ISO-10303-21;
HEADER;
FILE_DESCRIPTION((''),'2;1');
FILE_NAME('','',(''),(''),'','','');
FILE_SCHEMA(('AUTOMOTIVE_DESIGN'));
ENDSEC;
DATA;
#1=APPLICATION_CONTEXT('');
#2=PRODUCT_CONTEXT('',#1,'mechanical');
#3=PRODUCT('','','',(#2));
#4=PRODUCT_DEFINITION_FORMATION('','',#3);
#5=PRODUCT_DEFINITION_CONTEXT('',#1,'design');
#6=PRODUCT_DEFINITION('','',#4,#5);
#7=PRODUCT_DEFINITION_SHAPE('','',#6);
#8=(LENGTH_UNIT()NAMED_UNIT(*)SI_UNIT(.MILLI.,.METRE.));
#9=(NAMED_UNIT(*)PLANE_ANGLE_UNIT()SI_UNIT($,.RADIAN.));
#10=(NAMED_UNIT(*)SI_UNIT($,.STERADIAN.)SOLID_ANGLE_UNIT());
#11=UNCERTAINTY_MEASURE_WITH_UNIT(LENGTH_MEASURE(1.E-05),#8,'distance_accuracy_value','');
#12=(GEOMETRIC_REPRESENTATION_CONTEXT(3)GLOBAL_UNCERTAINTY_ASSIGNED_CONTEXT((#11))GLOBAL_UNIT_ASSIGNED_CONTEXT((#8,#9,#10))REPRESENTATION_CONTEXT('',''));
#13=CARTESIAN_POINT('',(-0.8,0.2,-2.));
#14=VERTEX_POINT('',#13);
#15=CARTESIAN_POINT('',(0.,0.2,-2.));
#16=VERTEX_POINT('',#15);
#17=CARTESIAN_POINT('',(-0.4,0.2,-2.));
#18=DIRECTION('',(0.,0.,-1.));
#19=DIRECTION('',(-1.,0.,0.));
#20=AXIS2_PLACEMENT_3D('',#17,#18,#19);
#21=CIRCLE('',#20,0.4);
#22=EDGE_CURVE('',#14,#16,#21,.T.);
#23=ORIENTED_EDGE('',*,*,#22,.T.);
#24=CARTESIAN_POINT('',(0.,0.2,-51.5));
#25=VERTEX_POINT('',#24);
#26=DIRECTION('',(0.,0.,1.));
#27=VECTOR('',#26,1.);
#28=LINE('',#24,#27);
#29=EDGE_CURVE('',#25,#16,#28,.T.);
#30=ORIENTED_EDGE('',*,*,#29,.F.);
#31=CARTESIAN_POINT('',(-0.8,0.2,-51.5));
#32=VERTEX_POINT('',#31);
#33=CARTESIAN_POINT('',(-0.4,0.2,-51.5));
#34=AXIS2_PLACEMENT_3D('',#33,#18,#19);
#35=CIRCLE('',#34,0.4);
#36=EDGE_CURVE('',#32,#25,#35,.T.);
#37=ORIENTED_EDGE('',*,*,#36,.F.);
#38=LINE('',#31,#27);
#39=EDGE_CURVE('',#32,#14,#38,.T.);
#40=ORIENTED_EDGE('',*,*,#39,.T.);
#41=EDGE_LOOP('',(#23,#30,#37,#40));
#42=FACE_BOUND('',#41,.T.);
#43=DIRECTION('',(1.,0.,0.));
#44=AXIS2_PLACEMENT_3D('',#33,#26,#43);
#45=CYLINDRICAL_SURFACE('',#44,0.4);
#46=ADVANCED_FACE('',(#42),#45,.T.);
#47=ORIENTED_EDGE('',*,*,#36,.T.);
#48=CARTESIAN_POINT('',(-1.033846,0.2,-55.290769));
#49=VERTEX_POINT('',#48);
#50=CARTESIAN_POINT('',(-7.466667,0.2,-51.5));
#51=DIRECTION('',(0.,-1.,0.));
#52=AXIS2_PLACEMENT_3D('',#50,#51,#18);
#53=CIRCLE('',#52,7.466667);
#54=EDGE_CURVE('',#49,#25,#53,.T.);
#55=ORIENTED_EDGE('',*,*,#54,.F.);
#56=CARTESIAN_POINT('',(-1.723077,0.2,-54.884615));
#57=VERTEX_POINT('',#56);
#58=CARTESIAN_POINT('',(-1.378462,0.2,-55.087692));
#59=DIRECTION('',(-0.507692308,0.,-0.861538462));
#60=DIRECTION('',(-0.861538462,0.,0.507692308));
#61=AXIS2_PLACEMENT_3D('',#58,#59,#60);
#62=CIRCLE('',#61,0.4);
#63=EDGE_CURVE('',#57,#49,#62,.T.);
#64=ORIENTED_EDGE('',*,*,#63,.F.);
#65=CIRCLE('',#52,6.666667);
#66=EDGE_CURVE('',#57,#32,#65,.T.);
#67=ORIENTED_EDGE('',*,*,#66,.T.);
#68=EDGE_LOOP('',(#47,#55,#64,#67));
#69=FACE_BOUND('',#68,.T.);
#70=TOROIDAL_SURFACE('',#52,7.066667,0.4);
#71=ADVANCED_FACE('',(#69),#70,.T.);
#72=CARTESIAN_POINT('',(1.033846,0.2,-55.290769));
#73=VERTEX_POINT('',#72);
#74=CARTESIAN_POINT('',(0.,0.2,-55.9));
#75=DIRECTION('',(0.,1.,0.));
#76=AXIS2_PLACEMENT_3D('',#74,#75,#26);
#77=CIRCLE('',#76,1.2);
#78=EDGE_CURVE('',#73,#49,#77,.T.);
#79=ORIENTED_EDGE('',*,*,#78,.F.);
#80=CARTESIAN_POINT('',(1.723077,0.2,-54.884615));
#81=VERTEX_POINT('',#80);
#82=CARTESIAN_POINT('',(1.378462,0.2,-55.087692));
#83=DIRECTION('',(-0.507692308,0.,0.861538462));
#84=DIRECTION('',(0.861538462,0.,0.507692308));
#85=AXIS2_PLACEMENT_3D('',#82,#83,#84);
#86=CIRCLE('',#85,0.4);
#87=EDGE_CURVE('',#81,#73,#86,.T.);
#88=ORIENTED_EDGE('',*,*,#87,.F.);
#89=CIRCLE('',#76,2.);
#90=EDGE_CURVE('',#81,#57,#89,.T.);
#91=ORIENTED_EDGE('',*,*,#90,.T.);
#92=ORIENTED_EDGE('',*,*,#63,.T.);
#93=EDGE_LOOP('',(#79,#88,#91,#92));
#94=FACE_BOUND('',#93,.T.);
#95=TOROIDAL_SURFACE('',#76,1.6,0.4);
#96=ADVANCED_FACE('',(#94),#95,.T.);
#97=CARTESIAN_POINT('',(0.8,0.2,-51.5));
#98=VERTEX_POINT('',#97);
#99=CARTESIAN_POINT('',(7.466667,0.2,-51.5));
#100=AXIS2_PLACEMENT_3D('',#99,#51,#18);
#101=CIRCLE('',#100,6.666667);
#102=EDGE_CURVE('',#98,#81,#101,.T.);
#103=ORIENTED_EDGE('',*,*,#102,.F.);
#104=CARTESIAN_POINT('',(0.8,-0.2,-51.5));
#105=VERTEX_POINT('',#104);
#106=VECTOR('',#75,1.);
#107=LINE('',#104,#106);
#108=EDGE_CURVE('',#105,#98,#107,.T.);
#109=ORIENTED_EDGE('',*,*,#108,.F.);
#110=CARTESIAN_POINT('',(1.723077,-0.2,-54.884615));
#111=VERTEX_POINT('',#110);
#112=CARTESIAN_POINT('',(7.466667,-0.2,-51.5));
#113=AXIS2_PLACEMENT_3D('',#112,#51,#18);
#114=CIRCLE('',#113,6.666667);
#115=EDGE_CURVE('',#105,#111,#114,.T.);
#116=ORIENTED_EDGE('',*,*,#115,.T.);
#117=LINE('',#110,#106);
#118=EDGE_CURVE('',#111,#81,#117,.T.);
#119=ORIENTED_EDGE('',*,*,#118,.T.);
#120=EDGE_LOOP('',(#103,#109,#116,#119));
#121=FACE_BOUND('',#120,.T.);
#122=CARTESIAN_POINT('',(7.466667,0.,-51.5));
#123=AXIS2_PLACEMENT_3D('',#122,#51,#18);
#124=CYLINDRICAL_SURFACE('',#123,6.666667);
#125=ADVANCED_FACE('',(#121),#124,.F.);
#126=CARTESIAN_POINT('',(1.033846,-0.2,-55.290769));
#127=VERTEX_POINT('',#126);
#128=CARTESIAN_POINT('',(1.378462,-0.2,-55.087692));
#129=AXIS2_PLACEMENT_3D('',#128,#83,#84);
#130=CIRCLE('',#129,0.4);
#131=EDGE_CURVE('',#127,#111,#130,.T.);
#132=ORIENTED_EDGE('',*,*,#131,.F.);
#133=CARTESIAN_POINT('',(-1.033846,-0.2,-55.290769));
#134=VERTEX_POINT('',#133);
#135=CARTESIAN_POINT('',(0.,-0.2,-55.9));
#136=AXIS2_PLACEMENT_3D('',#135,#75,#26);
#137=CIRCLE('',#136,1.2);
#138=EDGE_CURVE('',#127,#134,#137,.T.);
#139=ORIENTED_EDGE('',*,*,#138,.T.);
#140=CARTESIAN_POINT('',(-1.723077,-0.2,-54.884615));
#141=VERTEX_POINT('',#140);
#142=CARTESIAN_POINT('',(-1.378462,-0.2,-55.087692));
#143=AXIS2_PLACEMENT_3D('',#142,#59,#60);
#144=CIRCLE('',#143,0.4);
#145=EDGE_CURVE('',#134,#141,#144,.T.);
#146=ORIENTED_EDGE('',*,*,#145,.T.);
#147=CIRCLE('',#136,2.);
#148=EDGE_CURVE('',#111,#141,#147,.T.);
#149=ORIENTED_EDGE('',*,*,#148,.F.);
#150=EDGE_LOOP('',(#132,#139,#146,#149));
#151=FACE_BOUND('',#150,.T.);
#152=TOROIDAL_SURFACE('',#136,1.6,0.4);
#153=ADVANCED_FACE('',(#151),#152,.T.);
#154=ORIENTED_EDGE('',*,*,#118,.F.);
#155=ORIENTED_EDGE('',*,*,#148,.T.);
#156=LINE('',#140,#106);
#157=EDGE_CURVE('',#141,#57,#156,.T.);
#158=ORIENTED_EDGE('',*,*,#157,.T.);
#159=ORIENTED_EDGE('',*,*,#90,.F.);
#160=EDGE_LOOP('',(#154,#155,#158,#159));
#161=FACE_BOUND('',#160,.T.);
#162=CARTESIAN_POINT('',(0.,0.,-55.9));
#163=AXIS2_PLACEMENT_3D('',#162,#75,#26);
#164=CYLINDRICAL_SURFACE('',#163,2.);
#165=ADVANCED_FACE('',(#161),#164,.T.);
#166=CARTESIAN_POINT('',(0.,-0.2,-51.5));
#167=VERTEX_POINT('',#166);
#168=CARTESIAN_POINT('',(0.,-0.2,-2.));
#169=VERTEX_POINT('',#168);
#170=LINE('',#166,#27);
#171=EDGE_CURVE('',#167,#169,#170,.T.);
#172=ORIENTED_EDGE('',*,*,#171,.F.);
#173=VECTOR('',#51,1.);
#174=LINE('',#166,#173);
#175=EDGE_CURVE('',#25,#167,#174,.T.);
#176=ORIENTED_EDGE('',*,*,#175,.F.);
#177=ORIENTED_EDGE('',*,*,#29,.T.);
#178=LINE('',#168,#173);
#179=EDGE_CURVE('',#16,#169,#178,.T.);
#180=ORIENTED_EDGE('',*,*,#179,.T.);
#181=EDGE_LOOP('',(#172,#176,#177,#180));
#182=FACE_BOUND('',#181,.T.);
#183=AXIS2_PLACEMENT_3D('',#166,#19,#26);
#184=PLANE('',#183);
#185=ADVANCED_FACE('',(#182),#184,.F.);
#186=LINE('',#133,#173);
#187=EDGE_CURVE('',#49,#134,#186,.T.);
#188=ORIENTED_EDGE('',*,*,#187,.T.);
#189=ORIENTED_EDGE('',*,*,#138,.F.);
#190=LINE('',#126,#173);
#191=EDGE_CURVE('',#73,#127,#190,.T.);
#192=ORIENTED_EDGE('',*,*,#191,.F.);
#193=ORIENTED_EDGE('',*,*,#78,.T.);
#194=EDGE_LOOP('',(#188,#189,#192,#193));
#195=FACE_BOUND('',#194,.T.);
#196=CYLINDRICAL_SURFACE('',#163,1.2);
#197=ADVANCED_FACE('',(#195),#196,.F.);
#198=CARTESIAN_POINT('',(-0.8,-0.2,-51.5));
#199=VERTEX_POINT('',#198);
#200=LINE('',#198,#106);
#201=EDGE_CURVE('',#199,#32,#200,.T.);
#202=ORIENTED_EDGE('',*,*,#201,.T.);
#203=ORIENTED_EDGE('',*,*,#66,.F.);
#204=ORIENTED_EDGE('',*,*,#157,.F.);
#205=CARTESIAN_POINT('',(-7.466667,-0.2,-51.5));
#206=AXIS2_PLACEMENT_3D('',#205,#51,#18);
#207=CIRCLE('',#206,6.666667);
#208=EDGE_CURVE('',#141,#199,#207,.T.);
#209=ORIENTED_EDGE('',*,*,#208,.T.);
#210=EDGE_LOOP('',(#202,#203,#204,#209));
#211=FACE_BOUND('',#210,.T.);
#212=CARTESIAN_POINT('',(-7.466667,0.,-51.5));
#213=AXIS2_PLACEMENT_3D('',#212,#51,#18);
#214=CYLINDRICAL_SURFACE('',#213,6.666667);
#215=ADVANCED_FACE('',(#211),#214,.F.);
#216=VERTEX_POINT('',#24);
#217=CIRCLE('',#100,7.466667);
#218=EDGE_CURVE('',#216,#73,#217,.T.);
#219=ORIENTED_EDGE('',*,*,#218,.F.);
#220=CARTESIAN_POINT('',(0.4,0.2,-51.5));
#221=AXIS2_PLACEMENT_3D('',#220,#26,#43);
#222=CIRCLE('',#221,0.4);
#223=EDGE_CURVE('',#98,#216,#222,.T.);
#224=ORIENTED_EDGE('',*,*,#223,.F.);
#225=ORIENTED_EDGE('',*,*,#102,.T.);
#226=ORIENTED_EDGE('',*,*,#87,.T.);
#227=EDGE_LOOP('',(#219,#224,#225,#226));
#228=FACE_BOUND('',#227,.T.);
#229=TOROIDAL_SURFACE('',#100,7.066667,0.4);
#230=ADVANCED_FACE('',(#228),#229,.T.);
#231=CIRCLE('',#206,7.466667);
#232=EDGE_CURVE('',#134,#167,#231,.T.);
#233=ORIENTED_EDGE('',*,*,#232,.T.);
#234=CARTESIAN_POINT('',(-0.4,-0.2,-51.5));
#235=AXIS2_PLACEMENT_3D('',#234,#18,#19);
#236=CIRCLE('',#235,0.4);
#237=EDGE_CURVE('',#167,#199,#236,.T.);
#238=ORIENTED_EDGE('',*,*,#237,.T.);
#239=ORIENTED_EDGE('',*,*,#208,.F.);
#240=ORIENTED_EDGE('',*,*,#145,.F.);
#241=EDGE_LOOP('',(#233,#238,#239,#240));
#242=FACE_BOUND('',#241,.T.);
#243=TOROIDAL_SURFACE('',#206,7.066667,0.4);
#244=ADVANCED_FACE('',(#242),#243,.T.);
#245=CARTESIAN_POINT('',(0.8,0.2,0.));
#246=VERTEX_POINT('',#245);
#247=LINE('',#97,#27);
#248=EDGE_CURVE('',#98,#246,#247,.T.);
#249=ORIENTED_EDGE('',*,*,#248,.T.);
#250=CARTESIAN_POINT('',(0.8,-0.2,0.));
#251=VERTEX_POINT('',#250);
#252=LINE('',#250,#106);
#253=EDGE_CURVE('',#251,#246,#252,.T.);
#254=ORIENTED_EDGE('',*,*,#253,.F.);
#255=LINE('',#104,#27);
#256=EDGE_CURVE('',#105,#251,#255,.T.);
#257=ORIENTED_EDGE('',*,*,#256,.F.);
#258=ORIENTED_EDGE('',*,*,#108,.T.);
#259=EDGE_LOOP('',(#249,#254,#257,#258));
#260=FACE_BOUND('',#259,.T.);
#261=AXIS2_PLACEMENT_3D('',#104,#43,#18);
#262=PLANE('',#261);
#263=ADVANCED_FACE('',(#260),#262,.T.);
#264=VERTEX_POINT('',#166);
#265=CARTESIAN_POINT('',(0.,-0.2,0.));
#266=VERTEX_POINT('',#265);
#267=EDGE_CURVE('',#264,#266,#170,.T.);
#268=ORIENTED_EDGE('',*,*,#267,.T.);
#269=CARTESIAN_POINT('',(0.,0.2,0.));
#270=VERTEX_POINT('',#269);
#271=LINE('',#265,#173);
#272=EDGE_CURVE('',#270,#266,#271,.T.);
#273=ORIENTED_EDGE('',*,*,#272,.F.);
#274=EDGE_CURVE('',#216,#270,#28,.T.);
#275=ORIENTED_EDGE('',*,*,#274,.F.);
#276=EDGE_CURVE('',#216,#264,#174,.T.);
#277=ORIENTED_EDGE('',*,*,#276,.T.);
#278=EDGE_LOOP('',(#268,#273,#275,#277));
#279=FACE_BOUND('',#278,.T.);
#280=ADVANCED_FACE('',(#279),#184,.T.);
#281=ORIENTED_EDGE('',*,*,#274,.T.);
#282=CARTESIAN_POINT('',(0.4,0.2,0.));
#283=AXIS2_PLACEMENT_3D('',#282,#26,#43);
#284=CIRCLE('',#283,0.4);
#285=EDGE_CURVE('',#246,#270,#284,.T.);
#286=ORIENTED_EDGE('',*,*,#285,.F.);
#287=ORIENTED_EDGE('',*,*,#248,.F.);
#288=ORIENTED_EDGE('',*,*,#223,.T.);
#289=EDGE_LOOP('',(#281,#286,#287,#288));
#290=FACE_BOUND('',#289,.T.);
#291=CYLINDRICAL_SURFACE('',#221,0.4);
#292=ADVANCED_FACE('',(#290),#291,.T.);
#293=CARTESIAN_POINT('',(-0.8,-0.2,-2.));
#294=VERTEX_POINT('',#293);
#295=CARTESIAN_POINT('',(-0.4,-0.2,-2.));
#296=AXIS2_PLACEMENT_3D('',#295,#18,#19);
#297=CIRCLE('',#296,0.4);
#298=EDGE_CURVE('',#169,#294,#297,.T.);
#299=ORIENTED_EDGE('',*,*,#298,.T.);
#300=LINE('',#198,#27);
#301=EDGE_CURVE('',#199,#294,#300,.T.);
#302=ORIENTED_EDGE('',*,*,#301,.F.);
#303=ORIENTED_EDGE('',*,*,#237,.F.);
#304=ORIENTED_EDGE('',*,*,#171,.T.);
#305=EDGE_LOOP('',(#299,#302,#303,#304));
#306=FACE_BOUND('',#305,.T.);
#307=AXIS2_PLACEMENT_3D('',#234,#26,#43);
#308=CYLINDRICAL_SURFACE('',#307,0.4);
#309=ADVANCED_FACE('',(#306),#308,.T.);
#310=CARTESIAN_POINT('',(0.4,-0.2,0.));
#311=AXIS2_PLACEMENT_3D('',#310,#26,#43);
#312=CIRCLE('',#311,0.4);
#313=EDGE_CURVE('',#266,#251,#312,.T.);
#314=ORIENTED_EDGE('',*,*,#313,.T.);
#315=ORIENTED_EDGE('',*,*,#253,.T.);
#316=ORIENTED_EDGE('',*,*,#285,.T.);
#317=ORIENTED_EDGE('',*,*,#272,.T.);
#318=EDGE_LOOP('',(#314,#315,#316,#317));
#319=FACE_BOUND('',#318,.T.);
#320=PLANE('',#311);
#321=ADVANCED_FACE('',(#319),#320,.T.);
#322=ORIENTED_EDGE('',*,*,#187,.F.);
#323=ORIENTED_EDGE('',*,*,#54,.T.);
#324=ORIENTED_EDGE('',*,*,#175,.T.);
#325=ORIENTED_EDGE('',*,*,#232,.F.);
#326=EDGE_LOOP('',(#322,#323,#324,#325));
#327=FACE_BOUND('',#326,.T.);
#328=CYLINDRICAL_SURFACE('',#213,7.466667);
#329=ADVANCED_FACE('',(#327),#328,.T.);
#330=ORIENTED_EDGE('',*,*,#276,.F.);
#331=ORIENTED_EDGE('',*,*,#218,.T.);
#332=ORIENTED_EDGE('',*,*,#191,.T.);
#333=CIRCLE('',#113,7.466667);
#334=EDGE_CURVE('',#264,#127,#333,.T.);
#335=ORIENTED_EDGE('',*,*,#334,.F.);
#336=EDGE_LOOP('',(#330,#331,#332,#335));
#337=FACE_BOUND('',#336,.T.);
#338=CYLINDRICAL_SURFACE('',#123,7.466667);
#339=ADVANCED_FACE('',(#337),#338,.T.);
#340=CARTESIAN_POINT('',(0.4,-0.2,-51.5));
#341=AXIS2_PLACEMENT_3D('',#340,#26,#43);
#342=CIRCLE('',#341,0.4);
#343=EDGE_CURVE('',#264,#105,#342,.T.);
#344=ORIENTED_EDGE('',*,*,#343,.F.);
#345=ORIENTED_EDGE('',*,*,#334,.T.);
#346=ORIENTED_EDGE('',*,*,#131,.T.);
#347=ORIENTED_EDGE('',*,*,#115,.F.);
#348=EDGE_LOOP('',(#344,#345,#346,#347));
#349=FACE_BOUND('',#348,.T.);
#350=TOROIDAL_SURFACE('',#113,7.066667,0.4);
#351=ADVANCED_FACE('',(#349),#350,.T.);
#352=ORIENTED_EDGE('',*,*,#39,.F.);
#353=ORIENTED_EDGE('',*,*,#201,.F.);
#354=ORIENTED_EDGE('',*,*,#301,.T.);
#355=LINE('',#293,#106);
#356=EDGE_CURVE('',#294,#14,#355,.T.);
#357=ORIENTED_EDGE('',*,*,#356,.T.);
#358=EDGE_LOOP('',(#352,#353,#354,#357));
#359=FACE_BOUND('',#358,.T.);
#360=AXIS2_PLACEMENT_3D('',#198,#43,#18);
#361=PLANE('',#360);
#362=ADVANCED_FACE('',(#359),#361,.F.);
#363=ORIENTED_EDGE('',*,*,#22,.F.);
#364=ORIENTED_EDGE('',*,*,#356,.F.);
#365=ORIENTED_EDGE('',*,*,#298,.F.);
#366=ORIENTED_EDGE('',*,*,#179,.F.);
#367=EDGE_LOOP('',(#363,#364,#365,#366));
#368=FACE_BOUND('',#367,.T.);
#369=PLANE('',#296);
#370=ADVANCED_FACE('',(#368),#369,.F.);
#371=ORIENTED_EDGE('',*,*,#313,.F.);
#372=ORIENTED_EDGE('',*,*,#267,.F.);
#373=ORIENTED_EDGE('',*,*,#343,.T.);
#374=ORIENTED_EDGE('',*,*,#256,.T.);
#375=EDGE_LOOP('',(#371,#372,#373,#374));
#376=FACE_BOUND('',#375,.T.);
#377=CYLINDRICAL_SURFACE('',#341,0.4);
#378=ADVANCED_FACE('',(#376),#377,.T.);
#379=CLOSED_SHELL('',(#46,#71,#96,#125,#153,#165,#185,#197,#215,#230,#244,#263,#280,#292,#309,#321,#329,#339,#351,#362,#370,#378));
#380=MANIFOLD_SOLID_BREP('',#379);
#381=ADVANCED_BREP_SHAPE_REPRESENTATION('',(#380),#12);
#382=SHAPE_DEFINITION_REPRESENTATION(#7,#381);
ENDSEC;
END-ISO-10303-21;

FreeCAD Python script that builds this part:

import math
import FreeCAD as App
import Part
import Sketcher
Q = App.Units.Quantity

doc = App.newDocument("Part")
params = doc.addObject("Spreadsheet::Sheet", "Params")
for row, (alias, value) in enumerate([
    ("sketch1_radius", "0.4 mm"),
    ("sketch1_height", "0.4 mm"),
    ("sketch2_radius", "1.6 mm"),
    ("sketch2_height", "49.5 mm"),
    ("sketch2_height2", "51.5 mm"),
], start=1):
    params.set(f"A{row}", alias)
    params.set(f"B{row}", "=" + value)
    params.setAlias(f"B{row}", alias)

body = doc.addObject("PartDesign::Body", "Body")

# Sketch on XY plane
sketch1 = body.newObject("Sketcher::SketchObject", "Sketch")
sketch1.AttachmentSupport = (doc.getObject("XY_Plane"), [""])
sketch1.MapMode = "FlatFace"
sketch1.addGeometry(Part.LineSegment(App.Vector(0, 0.2, 0), App.Vector(0, -0.2, 0)), False)
sketch1.addGeometry(Part.ArcOfCircle(Part.Circle(App.Vector(0.4, -0.2, 0), App.Vector(0, 0, 1), 0.4), math.radians(180), math.radians(360)), False)
sketch1.addGeometry(Part.LineSegment(App.Vector(0.8, -0.2, 0), App.Vector(0.8, 0.2, 0)), False)
sketch1.addGeometry(Part.ArcOfCircle(Part.Circle(App.Vector(0.4, 0.2, 0), App.Vector(0, 0, 1), 0.4), math.radians(0), math.radians(180)), False)
sketch1.addConstraint(Sketcher.Constraint("Tangent", 0, 2, 1, 1))
sketch1.addConstraint(Sketcher.Constraint("Tangent", 1, 2, 2, 1))
sketch1.addConstraint(Sketcher.Constraint("Tangent", 2, 2, 3, 1))
sketch1.addConstraint(Sketcher.Constraint("Tangent", 3, 2, 0, 1))
sketch1.addConstraint(Sketcher.Constraint("Vertical", 0))
sketch1.addConstraint(Sketcher.Constraint("Vertical", 2))
sketch1.addConstraint(Sketcher.Constraint("Symmetric", 0, 2, 3, 2, -1, 1))
sketch1.addConstraint(Sketcher.Constraint("Radius", 1, Q("0.4 mm")))
sketch1.addConstraint(Sketcher.Constraint("DistanceY", 0, 2, 0, 1, Q("0.4 mm")))
sketch1.setExpression("Constraints[7]", "Params.sketch1_radius")
sketch1.setExpression("Constraints[8]", "Params.sketch1_height")

# Sketch on XZ plane
sketch2 = body.newObject("Sketcher::SketchObject", "Sketch001")
sketch2.AttachmentSupport = (doc.getObject("XZ_Plane"), [""])
sketch2.MapMode = "FlatFace"
sketch2.addGeometry(Part.LineSegment(App.Vector(-0.4, -2, 0), App.Vector(-0.4, -51.5, 0)), False)
sketch2.addGeometry(Part.ArcOfCircle(Part.Circle(App.Vector(-7.5, -51.5, 0), App.Vector(0, 0, 1), 7.1), math.radians(-31), math.radians(0)), False)
sketch2.addGeometry(Part.ArcOfCircle(Part.Circle(App.Vector(0, -55.9, 0), App.Vector(0, 0, 1), 1.6), math.radians(149), math.radians(391)), False)
sketch2.addGeometry(Part.ArcOfCircle(Part.Circle(App.Vector(7.5, -51.5, 0), App.Vector(0, 0, 1), 7.1), math.radians(-180), math.radians(-149)), False)
sketch2.addGeometry(Part.LineSegment(App.Vector(0.4, -51.5, 0), App.Vector(0.4, 0, 0)), False)
sketch2.addConstraint(Sketcher.Constraint("Tangent", 0, 2, 1, 2))
sketch2.addConstraint(Sketcher.Constraint("Tangent", 1, 1, 2, 1))
sketch2.addConstraint(Sketcher.Constraint("Tangent", 2, 2, 3, 2))
sketch2.addConstraint(Sketcher.Constraint("Tangent", 3, 1, 4, 1))
sketch2.addConstraint(Sketcher.Constraint("Vertical", 0))
sketch2.addConstraint(Sketcher.Constraint("Vertical", 4))
sketch2.addConstraint(Sketcher.Constraint("Equal", 1, 3))
sketch2.addConstraint(Sketcher.Constraint("Symmetric", 1, 3, 3, 3, -2))
sketch2.addConstraint(Sketcher.Constraint("PointOnObject", 4, 2, -1))
sketch2.addConstraint(Sketcher.Constraint("Radius", 2, Q("1.6 mm")))
sketch2.addConstraint(Sketcher.Constraint("DistanceY", 0, 2, 0, 1, Q("49.5 mm")))
sketch2.addConstraint(Sketcher.Constraint("DistanceY", 4, 1, 4, 2, Q("51.5 mm")))
sketch2.addConstraint(Sketcher.Constraint("DistanceY", 2, 3, -1, 1, Q("55.9 mm")))
sketch2.addConstraint(Sketcher.Constraint("DistanceX", 0, 1, -1, 1, Q("0.4 mm")))
sketch2.setExpression("Constraints[9]", "Params.sketch2_radius")
sketch2.setExpression("Constraints[10]", "Params.sketch2_height")
sketch2.setExpression("Constraints[11]", "Params.sketch2_height2")
doc.recompute()

additivepipe = body.newObject("PartDesign::AdditivePipe", "AdditivePipe")
additivepipe.Profile = sketch1
additivepipe.Spine = (sketch2, ["Edge1", "Edge2", "Edge3", "Edge4", "Edge5"])

doc.recompute()
